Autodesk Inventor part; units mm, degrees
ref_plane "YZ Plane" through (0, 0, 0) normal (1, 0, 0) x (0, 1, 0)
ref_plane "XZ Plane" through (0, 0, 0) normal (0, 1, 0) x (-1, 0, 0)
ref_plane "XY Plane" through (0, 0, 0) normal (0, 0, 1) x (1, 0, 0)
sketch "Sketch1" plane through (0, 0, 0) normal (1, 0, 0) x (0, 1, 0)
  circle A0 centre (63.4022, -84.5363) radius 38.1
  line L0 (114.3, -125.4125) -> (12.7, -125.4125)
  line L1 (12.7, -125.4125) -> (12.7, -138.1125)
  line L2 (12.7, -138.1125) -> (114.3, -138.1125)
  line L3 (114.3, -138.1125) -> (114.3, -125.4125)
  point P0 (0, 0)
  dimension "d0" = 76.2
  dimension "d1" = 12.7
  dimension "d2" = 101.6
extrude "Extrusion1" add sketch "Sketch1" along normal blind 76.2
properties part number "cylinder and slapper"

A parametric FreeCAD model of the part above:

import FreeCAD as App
import Part
import Sketcher

V = App.Vector
Q = App.Units.Quantity


def add_polygon(sketch, points):
    """Adds a closed chain of lines whose ends are joined by coincident constraints."""
    first, n = sketch.GeometryCount, len(points)
    for a, b in zip(points, points[1:] + points[:1]):
        sketch.addGeometry(Part.LineSegment(App.Vector(*a, 0), App.Vector(*b, 0)), False)
    for i in range(n):
        sketch.addConstraint(Sketcher.Constraint("Coincident", first + i, 2, first + (i + 1) % n, 1))

doc = App.newDocument("Part")
body = doc.addObject("PartDesign::Body", "Body")
body.AllowCompound = True

# Sketch on YZ plane
sketch1 = doc.addObject("Sketcher::SketchObject", "Sketch")
body.addObject(sketch1)
sketch1.AttachmentSupport = (doc.YZ_Plane, [""])
sketch1.MapMode = "FlatFace"
sketch1.addGeometry(Part.Circle(V(63.4022, -84.5363, 0), V(0, 0, 1), 38.1), False)  # 0
add_polygon(sketch1, [(114.3, -138.1125), (114.3, -125.4125), (12.7, -125.4125), (12.7, -138.1125)])  # lines 1-4
sketch1.addConstraint([
    Sketcher.Constraint("Vertical", 1),
    Sketcher.Constraint("Horizontal", 2),
    Sketcher.Constraint("Vertical", 3),
    Sketcher.Constraint("Horizontal", 4),
    Sketcher.Constraint("Diameter", 0, Q("3 in")),
    Sketcher.Constraint("DistanceX", 2, 2, 2, 1, Q("4 in")),
    Sketcher.Constraint("DistanceY", 1, 1, 1, 2, Q("0.5 in")),
    Sketcher.Constraint("DistanceX", -1, 1, 2, 2, Q("0.5 in")),
    Sketcher.Constraint("DistanceY", 1, 2, -1, 1, Q("4.9375 in")),
    Sketcher.Constraint("DistanceY", 0, 3, -1, 1, Q("3.3282 in")),
    Sketcher.Constraint("DistanceX", -1, 1, 0, 3, 63.4022),
])
pad1 = doc.addObject("PartDesign::Pad", "Pad")
body.addObject(pad1)
pad1.Profile = sketch1
pad1.Length = Q("3 in")

doc.recompute()
